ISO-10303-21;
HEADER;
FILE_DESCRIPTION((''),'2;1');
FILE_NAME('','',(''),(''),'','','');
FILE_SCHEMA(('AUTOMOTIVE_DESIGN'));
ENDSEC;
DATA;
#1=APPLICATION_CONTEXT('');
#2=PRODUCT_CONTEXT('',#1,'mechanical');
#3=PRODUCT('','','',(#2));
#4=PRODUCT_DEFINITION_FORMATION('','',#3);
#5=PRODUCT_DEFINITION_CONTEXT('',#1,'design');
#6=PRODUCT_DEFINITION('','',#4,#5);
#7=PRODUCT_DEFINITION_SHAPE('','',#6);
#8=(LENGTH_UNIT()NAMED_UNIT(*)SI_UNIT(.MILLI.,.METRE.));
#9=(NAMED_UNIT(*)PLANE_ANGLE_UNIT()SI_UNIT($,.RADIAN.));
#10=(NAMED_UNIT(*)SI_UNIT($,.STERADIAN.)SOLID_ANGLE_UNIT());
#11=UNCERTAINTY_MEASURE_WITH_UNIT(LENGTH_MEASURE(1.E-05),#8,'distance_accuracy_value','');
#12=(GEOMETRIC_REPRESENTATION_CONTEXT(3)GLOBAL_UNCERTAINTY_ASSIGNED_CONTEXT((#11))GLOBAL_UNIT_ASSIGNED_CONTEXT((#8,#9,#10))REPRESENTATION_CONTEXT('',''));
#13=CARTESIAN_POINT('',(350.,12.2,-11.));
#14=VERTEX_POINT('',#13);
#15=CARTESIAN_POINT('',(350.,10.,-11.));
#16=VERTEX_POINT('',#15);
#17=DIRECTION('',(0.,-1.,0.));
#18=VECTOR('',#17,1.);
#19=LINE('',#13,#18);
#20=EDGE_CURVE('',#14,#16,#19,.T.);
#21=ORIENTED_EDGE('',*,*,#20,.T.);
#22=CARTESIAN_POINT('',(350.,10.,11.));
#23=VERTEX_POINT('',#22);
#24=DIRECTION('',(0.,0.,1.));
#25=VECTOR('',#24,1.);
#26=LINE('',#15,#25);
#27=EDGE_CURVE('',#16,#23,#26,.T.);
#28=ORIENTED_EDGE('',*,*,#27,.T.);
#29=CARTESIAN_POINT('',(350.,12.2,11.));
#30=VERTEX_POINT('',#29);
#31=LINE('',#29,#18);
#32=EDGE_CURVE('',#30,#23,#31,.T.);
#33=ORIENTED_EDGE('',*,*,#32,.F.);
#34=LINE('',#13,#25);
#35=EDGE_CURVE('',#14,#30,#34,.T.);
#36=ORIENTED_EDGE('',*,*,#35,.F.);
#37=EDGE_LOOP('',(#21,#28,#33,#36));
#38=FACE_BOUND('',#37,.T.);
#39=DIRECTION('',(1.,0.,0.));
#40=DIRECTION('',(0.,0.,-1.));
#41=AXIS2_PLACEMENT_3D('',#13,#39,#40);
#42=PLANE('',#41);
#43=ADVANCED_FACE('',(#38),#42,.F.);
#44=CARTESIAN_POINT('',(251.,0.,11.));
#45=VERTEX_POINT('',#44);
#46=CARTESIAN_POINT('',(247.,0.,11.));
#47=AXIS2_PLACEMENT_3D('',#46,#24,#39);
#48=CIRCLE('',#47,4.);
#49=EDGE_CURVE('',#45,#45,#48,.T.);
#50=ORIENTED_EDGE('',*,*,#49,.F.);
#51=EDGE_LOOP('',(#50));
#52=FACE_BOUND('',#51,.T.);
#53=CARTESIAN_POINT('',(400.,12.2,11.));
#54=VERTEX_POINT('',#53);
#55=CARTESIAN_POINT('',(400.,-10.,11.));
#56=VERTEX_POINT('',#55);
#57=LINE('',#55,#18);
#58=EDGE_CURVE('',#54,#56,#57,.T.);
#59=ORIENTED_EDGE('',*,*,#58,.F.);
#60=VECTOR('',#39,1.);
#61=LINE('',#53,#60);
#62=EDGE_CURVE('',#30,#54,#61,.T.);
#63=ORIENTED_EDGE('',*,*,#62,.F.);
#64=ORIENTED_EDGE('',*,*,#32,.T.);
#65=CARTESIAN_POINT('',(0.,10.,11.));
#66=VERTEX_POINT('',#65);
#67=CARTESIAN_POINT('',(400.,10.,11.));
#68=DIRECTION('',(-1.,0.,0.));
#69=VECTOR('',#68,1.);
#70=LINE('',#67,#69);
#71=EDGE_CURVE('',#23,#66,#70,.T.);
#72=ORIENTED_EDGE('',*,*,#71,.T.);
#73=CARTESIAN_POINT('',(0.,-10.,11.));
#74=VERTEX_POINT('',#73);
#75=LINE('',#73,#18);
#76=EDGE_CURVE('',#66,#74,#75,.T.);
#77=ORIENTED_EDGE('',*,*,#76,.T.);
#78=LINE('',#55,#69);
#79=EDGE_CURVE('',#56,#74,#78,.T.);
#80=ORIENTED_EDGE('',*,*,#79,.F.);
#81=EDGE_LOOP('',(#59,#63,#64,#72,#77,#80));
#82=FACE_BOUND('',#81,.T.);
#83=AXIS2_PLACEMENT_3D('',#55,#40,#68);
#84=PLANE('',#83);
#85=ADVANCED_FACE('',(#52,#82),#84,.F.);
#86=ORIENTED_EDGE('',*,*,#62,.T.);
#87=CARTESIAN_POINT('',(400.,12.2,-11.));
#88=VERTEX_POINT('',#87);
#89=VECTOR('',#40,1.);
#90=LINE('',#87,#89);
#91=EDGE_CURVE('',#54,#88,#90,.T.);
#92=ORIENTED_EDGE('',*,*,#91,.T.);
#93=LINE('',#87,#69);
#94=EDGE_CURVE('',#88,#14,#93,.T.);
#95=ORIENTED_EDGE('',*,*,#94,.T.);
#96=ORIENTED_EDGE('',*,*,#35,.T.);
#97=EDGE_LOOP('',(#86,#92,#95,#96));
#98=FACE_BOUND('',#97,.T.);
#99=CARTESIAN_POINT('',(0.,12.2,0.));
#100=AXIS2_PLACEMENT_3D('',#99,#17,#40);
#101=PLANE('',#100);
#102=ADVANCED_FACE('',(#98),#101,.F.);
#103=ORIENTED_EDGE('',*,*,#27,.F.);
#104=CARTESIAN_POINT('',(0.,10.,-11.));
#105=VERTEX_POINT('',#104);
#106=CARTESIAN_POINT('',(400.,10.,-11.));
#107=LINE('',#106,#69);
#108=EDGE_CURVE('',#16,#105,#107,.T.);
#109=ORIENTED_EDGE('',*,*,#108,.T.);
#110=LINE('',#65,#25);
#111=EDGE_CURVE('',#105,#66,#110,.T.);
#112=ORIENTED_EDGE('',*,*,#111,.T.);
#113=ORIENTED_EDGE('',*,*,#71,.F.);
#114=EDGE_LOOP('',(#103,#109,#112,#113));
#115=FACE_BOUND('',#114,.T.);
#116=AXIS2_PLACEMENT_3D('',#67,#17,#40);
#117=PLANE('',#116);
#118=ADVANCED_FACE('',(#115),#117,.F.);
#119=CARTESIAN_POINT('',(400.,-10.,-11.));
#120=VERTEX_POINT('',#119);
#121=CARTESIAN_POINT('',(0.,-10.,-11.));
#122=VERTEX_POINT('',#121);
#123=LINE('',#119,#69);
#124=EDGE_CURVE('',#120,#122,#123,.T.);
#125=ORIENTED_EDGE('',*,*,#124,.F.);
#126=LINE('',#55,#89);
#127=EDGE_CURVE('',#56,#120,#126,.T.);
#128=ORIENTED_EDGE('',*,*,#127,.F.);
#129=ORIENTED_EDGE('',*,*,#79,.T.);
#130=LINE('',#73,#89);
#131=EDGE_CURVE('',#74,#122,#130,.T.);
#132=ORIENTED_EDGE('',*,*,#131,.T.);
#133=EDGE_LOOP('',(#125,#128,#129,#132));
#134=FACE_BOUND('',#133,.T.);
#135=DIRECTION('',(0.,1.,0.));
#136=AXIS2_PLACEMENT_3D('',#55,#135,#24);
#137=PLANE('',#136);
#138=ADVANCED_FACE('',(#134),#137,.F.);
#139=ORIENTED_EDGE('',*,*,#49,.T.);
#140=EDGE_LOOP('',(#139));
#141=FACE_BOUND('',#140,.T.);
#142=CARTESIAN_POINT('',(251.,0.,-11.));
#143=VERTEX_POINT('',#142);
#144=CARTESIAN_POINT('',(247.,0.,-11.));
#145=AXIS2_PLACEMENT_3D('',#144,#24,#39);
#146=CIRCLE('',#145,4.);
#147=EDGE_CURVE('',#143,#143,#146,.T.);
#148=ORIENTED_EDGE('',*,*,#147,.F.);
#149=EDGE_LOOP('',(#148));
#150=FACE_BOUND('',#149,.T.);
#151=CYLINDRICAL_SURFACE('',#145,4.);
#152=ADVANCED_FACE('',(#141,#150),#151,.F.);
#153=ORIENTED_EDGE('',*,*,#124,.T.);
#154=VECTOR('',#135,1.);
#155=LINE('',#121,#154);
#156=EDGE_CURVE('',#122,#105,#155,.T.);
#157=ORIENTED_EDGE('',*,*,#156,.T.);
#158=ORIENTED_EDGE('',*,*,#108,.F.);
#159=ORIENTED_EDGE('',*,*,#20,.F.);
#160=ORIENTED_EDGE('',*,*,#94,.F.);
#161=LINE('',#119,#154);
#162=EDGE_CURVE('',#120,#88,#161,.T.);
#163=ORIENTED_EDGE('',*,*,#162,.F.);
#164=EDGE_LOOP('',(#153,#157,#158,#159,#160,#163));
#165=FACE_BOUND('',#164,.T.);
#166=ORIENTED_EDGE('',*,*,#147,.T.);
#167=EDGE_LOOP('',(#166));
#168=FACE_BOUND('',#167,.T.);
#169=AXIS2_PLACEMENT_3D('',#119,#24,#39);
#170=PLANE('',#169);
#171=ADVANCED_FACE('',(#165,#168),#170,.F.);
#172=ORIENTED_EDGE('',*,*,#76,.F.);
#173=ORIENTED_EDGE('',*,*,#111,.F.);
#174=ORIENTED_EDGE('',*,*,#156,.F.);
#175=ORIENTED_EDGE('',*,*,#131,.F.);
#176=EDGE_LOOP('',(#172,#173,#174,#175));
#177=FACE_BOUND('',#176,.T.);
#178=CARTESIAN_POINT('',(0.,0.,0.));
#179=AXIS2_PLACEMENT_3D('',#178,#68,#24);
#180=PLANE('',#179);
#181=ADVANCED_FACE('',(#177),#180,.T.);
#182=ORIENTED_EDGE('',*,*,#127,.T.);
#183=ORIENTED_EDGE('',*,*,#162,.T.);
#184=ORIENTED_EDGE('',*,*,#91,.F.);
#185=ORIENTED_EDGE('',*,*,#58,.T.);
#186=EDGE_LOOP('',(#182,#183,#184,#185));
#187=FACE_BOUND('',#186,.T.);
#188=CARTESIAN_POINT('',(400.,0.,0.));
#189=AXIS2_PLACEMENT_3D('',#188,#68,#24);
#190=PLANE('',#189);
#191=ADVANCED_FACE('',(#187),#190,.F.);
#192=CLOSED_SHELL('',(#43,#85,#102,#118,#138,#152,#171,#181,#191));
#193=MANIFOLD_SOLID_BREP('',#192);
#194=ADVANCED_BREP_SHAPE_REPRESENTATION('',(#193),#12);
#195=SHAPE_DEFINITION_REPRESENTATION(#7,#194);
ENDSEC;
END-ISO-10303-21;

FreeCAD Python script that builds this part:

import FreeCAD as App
import Part
import Sketcher

V = App.Vector

doc = App.newDocument("Part")
body = doc.addObject("PartDesign::Body", "Body")

# Sketch on YZ plane
sketch1 = body.newObject("Sketcher::SketchObject", "Sketch")
sketch1.AttachmentSupport = (doc.getObject("YZ_Plane"), [""])
sketch1.MapMode = "FlatFace"
sketch1.addGeometry(Part.LineSegment(V(10, 11, 0), V(-10, 11, 0)), False)
sketch1.addGeometry(Part.LineSegment(V(-10, 11, 0), V(-10, -11, 0)), False)
sketch1.addGeometry(Part.LineSegment(V(-10, -11, 0), V(10, -11, 0)), False)
sketch1.addGeometry(Part.LineSegment(V(10, -11, 0), V(10, 11, 0)), False)
sketch1.addConstraint(Sketcher.Constraint("Coincident", 0, 2, 1, 1))
sketch1.addConstraint(Sketcher.Constraint("Coincident", 1, 2, 2, 1))
sketch1.addConstraint(Sketcher.Constraint("Coincident", 2, 2, 3, 1))
sketch1.addConstraint(Sketcher.Constraint("Coincident", 3, 2, 0, 1))
sketch1.addConstraint(Sketcher.Constraint("Horizontal", 0))
sketch1.addConstraint(Sketcher.Constraint("Vertical", 1))
sketch1.addConstraint(Sketcher.Constraint("Horizontal", 2))
sketch1.addConstraint(Sketcher.Constraint("Vertical", 3))
sketch1.addConstraint(Sketcher.Constraint("Symmetric", 0, 2, 2, 2, -1, 1))
sketch1.addConstraint(Sketcher.Constraint("DistanceX", 0, 2, 0, 1, 20.0))
sketch1.addConstraint(Sketcher.Constraint("DistanceY", 1, 2, 1, 1, 22.0))
pad1 = body.newObject("PartDesign::Pad", "Pad")
pad1.Profile = sketch1
pad1.Length = 400

# Sketch on XY plane
sketch2 = body.newObject("Sketcher::SketchObject", "Sketch001")
sketch2.AttachmentSupport = (doc.getObject("XY_Plane"), [""])
sketch2.MapMode = "FlatFace"
sketch2.AttachmentOffset = App.Placement(V(0, 0, 11), App.Rotation())
sketch2.addGeometry(Part.Circle(V(247, 0, 0), V(0, 0, 1), 4), False)
sketch2.addConstraint(Sketcher.Constraint("PointOnObject", 0, 3, -1))
sketch2.addConstraint(Sketcher.Constraint("Diameter", 0, 8.0))
sketch2.addConstraint(Sketcher.Constraint("DistanceX", -1, 1, 0, 3, 247.0))
pocket1 = body.newObject("PartDesign::Pocket", "Pocket")
pocket1.Profile = sketch2
pocket1.Type = "ThroughAll"

# Sketch on XZ plane
sketch3 = body.newObject("Sketcher::SketchObject", "Sketch002")
sketch3.AttachmentSupport = (doc.getObject("XZ_Plane"), [""])
sketch3.MapMode = "FlatFace"
sketch3.AttachmentOffset = App.Placement(V(0, 0, -10), App.Rotation())
sketch3.addGeometry(Part.LineSegment(V(350, -11, 0), V(350, 11, 0)), False)
sketch3.addGeometry(Part.LineSegment(V(350, 11, 0), V(400, 11, 0)), False)
sketch3.addGeometry(Part.LineSegment(V(400, 11, 0), V(400, -11, 0)), False)
sketch3.addGeometry(Part.LineSegment(V(400, -11, 0), V(350, -11, 0)), False)
sketch3.addConstraint(Sketcher.Constraint("Coincident", 0, 2, 1, 1))
sketch3.addConstraint(Sketcher.Constraint("Coincident", 1, 2, 2, 1))
sketch3.addConstraint(Sketcher.Constraint("Coincident", 2, 2, 3, 1))
sketch3.addConstraint(Sketcher.Constraint("Coincident", 3, 2, 0, 1))
sketch3.addConstraint(Sketcher.Constraint("Vertical", 0))
sketch3.addConstraint(Sketcher.Constraint("Horizontal", 1))
sketch3.addConstraint(Sketcher.Constraint("Vertical", 2))
sketch3.addConstraint(Sketcher.Constraint("Horizontal", 3))
sketch3.addConstraint(Sketcher.Constraint("DistanceX", 1, 1, 1, 2, 50.0))
sketch3.addConstraint(Sketcher.Constraint("DistanceY", 0, 1, 0, 2, 22.0))
sketch3.addConstraint(Sketcher.Constraint("DistanceX", -1, 1, 0, 2, 350.0))
sketch3.addConstraint(Sketcher.Constraint("DistanceY", -1, 1, 0, 2, 11.0))
pad2 = body.newObject("PartDesign::Pad", "Pad001")
pad2.Profile = sketch3
pad2.Length = 2.2
pad2.Reversed = True

doc.recompute()
